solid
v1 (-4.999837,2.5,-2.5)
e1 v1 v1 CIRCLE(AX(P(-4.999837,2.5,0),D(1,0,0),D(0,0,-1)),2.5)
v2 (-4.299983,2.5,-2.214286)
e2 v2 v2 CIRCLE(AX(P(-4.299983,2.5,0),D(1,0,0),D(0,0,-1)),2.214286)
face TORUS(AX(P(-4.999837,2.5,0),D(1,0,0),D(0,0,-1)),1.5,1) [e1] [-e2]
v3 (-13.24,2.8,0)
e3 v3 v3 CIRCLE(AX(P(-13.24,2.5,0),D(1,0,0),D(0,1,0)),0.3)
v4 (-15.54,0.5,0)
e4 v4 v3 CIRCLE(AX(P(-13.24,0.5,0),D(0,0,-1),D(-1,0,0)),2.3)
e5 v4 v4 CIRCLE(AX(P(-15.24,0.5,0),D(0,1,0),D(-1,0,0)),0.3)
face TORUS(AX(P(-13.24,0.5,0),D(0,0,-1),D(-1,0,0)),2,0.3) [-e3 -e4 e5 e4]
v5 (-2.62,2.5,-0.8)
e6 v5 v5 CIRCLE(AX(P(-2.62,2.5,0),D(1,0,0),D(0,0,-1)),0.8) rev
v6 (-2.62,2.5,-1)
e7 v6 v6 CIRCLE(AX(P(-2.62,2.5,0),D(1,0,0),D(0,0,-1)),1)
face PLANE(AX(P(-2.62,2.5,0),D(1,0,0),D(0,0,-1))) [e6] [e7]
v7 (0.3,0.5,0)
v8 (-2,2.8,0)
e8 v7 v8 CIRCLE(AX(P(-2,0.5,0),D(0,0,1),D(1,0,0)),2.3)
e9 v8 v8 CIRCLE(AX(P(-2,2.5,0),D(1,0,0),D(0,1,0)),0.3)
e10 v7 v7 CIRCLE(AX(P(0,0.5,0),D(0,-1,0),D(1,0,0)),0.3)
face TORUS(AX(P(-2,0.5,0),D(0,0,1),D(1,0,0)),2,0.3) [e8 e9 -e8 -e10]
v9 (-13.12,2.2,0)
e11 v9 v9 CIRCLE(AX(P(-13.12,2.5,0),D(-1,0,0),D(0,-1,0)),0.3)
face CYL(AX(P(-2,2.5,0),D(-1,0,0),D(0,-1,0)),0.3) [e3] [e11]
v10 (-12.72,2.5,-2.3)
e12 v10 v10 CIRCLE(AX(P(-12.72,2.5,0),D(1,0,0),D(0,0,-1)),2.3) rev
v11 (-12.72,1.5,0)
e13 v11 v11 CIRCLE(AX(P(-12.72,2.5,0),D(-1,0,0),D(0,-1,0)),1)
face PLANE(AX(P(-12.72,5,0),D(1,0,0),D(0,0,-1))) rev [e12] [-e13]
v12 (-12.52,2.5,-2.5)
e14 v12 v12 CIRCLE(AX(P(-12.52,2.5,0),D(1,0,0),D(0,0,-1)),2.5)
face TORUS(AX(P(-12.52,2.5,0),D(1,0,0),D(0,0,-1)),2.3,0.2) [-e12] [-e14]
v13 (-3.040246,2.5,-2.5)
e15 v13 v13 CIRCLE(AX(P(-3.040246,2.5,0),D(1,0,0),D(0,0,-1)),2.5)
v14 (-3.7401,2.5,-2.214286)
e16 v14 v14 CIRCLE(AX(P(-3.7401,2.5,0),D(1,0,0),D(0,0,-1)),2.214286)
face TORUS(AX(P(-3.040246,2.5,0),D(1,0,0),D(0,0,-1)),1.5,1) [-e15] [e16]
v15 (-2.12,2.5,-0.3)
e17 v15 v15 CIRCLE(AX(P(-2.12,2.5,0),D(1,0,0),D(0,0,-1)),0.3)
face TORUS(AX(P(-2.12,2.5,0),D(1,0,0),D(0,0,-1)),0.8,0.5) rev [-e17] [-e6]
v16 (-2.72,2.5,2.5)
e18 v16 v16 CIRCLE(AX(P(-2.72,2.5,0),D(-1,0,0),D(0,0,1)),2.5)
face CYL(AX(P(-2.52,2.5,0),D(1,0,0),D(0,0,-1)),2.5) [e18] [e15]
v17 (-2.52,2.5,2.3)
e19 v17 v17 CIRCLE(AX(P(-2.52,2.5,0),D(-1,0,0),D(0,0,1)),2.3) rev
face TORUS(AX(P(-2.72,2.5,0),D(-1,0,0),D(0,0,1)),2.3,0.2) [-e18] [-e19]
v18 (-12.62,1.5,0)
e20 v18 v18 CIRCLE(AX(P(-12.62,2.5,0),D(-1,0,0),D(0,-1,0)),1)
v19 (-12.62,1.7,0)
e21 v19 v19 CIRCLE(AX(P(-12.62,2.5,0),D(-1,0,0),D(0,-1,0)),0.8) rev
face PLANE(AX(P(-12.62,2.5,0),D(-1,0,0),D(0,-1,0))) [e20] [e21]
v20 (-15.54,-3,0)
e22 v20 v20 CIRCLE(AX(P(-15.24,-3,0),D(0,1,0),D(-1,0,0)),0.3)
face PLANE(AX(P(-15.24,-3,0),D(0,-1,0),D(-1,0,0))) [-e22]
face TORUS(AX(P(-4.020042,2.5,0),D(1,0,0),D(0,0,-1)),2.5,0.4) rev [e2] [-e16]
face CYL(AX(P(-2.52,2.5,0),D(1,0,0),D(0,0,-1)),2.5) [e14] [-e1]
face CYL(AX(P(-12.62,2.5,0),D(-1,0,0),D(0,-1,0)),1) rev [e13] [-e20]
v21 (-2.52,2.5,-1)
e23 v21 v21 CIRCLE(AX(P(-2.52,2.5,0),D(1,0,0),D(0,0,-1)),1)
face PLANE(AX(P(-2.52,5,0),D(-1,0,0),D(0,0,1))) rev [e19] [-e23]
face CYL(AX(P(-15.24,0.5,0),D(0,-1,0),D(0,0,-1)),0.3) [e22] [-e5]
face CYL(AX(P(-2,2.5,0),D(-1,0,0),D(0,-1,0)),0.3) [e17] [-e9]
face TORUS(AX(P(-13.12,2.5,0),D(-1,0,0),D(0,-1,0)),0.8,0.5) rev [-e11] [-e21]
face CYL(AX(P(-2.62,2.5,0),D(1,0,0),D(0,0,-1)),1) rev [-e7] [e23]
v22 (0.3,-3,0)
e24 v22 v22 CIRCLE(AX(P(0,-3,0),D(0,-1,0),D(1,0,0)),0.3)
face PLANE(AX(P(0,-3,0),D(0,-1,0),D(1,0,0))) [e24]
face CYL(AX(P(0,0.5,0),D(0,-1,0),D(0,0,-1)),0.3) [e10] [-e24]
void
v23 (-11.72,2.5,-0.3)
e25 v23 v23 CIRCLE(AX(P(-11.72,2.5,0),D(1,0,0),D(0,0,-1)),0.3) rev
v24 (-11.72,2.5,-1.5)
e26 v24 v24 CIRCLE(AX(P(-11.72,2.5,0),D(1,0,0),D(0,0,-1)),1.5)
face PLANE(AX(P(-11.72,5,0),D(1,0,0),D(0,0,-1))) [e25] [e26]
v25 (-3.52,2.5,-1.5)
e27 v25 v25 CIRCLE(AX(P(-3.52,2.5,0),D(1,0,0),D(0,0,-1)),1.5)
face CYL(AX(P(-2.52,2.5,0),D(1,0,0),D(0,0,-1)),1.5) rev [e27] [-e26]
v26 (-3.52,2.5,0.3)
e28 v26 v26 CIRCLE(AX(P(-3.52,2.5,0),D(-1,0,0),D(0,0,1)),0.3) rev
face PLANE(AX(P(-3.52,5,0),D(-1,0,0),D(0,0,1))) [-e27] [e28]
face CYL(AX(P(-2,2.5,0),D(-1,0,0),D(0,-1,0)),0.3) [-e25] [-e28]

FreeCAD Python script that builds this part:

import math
import FreeCAD as App
import Part
import Sketcher
Q = App.Units.Quantity


def edges_at(feature, points):
    """Names of the edges that pass closest to the given points."""
    edges = feature.Shape.Edges
    near = lambda p: min(range(len(edges)), key=lambda i: edges[i].distToShape(Part.Vertex(*p))[0])
    return sorted({f"Edge{near(p) + 1}" for p in points})

doc = App.newDocument("Part")
body = doc.addObject("PartDesign::Body", "Body")

# Sketch on XY plane
sketch1 = body.newObject("Sketcher::SketchObject", "Sketch")
sketch1.AttachmentSupport = (doc.getObject("XY_Plane"), [""])
sketch1.MapMode = "FlatFace"
sketch1.addGeometry(Part.LineSegment(App.Vector(-12.72, 5, 0), App.Vector(-12.72, 2.5, 0)), False)
sketch1.addGeometry(Part.LineSegment(App.Vector(-12.72, 2.5, 0), App.Vector(-11.72, 2.5, 0)), False)
sketch1.addGeometry(Part.LineSegment(App.Vector(-11.72, 2.5, 0), App.Vector(-11.72, 4, 0)), False)
sketch1.addGeometry(Part.LineSegment(App.Vector(-11.72, 4, 0), App.Vector(-3.52, 4, 0)), False)
sketch1.addGeometry(Part.LineSegment(App.Vector(-3.52, 4, 0), App.Vector(-3.52, 2.5, 0)), False)
sketch1.addGeometry(Part.LineSegment(App.Vector(-3.52, 2.5, 0), App.Vector(-2.52, 2.5, 0)), False)
sketch1.addGeometry(Part.LineSegment(App.Vector(-2.52, 2.5, 0), App.Vector(-2.52, 5, 0)), False)
sketch1.addGeometry(Part.LineSegment(App.Vector(-2.52, 5, 0), App.Vector(-12.72, 5, 0)), False)
sketch1.addGeometry(Part.LineSegment(App.Vector(-2.52, 2.5, 0), App.Vector(-12.72, 2.5, 0)), True)  # axis
sketch1.addConstraint(Sketcher.Constraint("Coincident", 0, 2, 1, 1))
sketch1.addConstraint(Sketcher.Constraint("Coincident", 1, 2, 2, 1))
sketch1.addConstraint(Sketcher.Constraint("Coincident", 2, 2, 3, 1))
sketch1.addConstraint(Sketcher.Constraint("Coincident", 3, 2, 4, 1))
sketch1.addConstraint(Sketcher.Constraint("Coincident", 4, 2, 5, 1))
sketch1.addConstraint(Sketcher.Constraint("Coincident", 5, 2, 6, 1))
sketch1.addConstraint(Sketcher.Constraint("Coincident", 6, 2, 7, 1))
sketch1.addConstraint(Sketcher.Constraint("Coincident", 7, 2, 0, 1))
sketch1.addConstraint(Sketcher.Constraint("Vertical", 0))
sketch1.addConstraint(Sketcher.Constraint("Horizontal", 1))
sketch1.addConstraint(Sketcher.Constraint("Vertical", 2))
sketch1.addConstraint(Sketcher.Constraint("Horizontal", 3))
sketch1.addConstraint(Sketcher.Constraint("Vertical", 4))
sketch1.addConstraint(Sketcher.Constraint("Horizontal", 5))
sketch1.addConstraint(Sketcher.Constraint("Vertical", 6))
sketch1.addConstraint(Sketcher.Constraint("Horizontal", 7))
sketch1.addConstraint(Sketcher.Constraint("Horizontal", 8))
sketch1.addConstraint(Sketcher.Constraint("Coincident", 8, 1, 5, 2))
sketch1.addConstraint(Sketcher.Constraint("Coincident", 8, 2, 0, 2))
sketch1.addConstraint(Sketcher.Constraint("Equal", 1, 5))
sketch1.addConstraint(Sketcher.Constraint("DistanceX", 1, 1, 1, 2, Q("1 mm")))
sketch1.addConstraint(Sketcher.Constraint("DistanceX", 3, 1, 3, 2, Q("8.2 mm")))
sketch1.addConstraint(Sketcher.Constraint("DistanceY", 0, 2, 0, 1, Q("2.5 mm")))
sketch1.addConstraint(Sketcher.Constraint("DistanceY", 2, 1, 2, 2, Q("1.5 mm")))
sketch1.addConstraint(Sketcher.Constraint("DistanceY", -1, 1, 2, 2, Q("4 mm")))
sketch1.addConstraint(Sketcher.Constraint("DistanceX", 0, 2, -1, 1, Q("12.72 mm")))
revolution = body.newObject("PartDesign::Revolution", "Revolution")
revolution.Profile = sketch1
revolution.ReferenceAxis = (sketch1, ["Axis0"])
revolution.Angle = 360

# Sketch on YZ plane
sketch2 = body.newObject("Sketcher::SketchObject", "Sketch001")
sketch2.AttachmentSupport = (doc.getObject("YZ_Plane"), [""])
sketch2.MapMode = "FlatFace"
sketch2.AttachmentOffset = App.Placement(App.Vector(0, 0, -2.52), App.Rotation())
sketch2.addGeometry(Part.Circle(App.Vector(2.5, 0, 0), App.Vector(0, 0, 1), 1), False)
sketch2.addConstraint(Sketcher.Constraint("PointOnObject", 0, 3, -1))
sketch2.addConstraint(Sketcher.Constraint("Diameter", 0, Q("2 mm")))
sketch2.addConstraint(Sketcher.Constraint("DistanceX", -1, 1, 0, 3, Q("2.5 mm")))
pocket1 = body.newObject("PartDesign::Pocket", "Pocket")
pocket1.Profile = sketch2
pocket1.Length = 0.1

# Sketch on YZ plane
sketch3 = body.newObject("Sketcher::SketchObject", "Sketch002")
sketch3.AttachmentSupport = (doc.getObject("YZ_Plane"), [""])
sketch3.MapMode = "FlatFace"
sketch3.AttachmentOffset = App.Placement(App.Vector(0, 0, -12.72), App.Rotation())
sketch3.addGeometry(Part.Circle(App.Vector(2.5, 0, 0), App.Vector(0, 0, 1), 1), False)
sketch3.addConstraint(Sketcher.Constraint("PointOnObject", 0, 3, -1))
sketch3.addConstraint(Sketcher.Constraint("Diameter", 0, Q("2 mm")))
sketch3.addConstraint(Sketcher.Constraint("DistanceX", -1, 1, 0, 3, Q("2.5 mm")))
pocket2 = body.newObject("PartDesign::Pocket", "Pocket001")
pocket2.Profile = sketch3
pocket2.Length = 0.1
pocket2.Reversed = True
doc.recompute()

fillet = body.newObject("PartDesign::Fillet", "Fillet")
fillet.Base = (pocket2, edges_at(pocket2, [(-2.52, 0, 0), (-12.72, 0, 0)]))
fillet.Radius = 0.2

# Sketch on YZ plane
sketch4 = body.newObject("Sketcher::SketchObject", "Sketch003")
sketch4.AttachmentSupport = (doc.getObject("YZ_Plane"), [""])
sketch4.MapMode = "FlatFace"
sketch4.AttachmentOffset = App.Placement(App.Vector(0, 0, -2.62), App.Rotation())
sketch4.addGeometry(Part.Circle(App.Vector(2.5, 0, 0), App.Vector(0, 0, 1), 0.3), False)
sketch4.addConstraint(Sketcher.Constraint("PointOnObject", 0, 3, -1))
sketch4.addConstraint(Sketcher.Constraint("Diameter", 0, Q("0.6 mm")))
sketch4.addConstraint(Sketcher.Constraint("DistanceX", -1, 1, 0, 3, Q("2.5 mm")))
pad1 = body.newObject("PartDesign::Pad", "Pad")
pad1.Profile = sketch4
pad1.Type = "TwoLengths"
pad1.Length = 0.62
pad1.Length2 = 10.62
doc.recompute()

fillet2 = body.newObject("PartDesign::Fillet", "Fillet001")
fillet2.Base = (pad1, edges_at(pad1, [(-2.62, 2.5, 0.3), (-12.62, 2.5, 0.3)]))
fillet2.Radius = 0.5

# Sketch on YZ plane
sketch5 = body.newObject("Sketcher::SketchObject", "Sketch004")
sketch5.AttachmentSupport = (doc.getObject("YZ_Plane"), [""])
sketch5.MapMode = "FlatFace"
sketch5.AttachmentOffset = App.Placement(App.Vector(0, 0, -2), App.Rotation())
sketch5.addGeometry(Part.Circle(App.Vector(2.5, 0, 0), App.Vector(0, 0, 1), 0.3), False)
sketch5.addConstraint(Sketcher.Constraint("PointOnObject", 0, 3, -1))
sketch5.addConstraint(Sketcher.Constraint("Diameter", 0, Q("0.6 mm")))
sketch5.addConstraint(Sketcher.Constraint("DistanceX", -1, 1, 0, 3, Q("2.5 mm")))

# Sketch on XY plane
sketch6 = body.newObject("Sketcher::SketchObject", "Sketch005")
sketch6.AttachmentSupport = (doc.getObject("XY_Plane"), [""])
sketch6.MapMode = "FlatFace"
sketch6.addGeometry(Part.LineSegment(App.Vector(0, -3, 0), App.Vector(0, 0.5, 0)), False)
sketch6.addGeometry(Part.ArcOfCircle(Part.Circle(App.Vector(-2, 0.5, 0), App.Vector(0, 0, 1), 2), math.radians(0), math.radians(90)), False)
sketch6.addConstraint(Sketcher.Constraint("Tangent", 0, 2, 1, 1))
sketch6.addConstraint(Sketcher.Constraint("Vertical", 0))
sketch6.addConstraint(Sketcher.Constraint("PointOnObject", 0, 1, -2))
sketch6.addConstraint(Sketcher.Constraint("Radius", 1, Q("2 mm")))
sketch6.addConstraint(Sketcher.Constraint("DistanceY", 0, 1, 0, 2, Q("3.5 mm")))
sketch6.addConstraint(Sketcher.Constraint("DistanceY", 0, 1, -1, 1, Q("3 mm")))
sketch6.addConstraint(Sketcher.Constraint("DistanceX", 1, 2, -1, 1, Q("2 mm")))
doc.recompute()

additivepipe = body.newObject("PartDesign::AdditivePipe", "AdditivePipe")
additivepipe.Profile = sketch5
additivepipe.Spine = (sketch6, ["Edge1", "Edge2"])
doc.recompute()

datumplane = body.newObject("PartDesign::Plane", "DatumPlane")
datumplane.AttachmentSupport = (doc.getObject("YZ_Plane"), [""])
datumplane.MapMode = "FlatFace"
datumplane.AttachmentOffset = App.Placement(App.Vector(0, 0, -7.62), App.Rotation())
mirrored = body.newObject("PartDesign::Mirrored", "Mirrored")
mirrored.Originals = [additivepipe]
mirrored.MirrorPlane = (datumplane, [""])
body.Tip = mirrored

# Sketch on XY plane
sketch7 = body.newObject("Sketcher::SketchObject", "Sketch006")
sketch7.AttachmentSupport = (doc.getObject("XY_Plane"), [""])
sketch7.MapMode = "FlatFace"
sketch7.addGeometry(Part.LineSegment(App.Vector(-3.040246, 5, 0), App.Vector(-4.999837, 5, 0)), False)
sketch7.addGeometry(Part.ArcOfCircle(Part.Circle(App.Vector(-4.999837, 4, 0), App.Vector(0, 0, 1), 1), math.radians(45.584715), math.radians(90)), False)
sketch7.addGeometry(Part.ArcOfCircle(Part.Circle(App.Vector(-4.020042, 5, 0), App.Vector(0, 0, 1), 0.4), math.radians(-134.415285), math.radians(-45.584715)), False)
sketch7.addGeometry(Part.ArcOfCircle(Part.Circle(App.Vector(-3.040246, 4, 0), App.Vector(0, 0, 1), 1), math.radians(90), math.radians(134.415285)), False)
sketch7.addGeometry(Part.LineSegment(App.Vector(-3.040246, 2.5, 0), App.Vector(-4.999837, 2.5, 0)), True)  # axis
sketch7.addConstraint(Sketcher.Constraint("Tangent", 0, 2, 1, 2))
sketch7.addConstraint(Sketcher.Constraint("Tangent", 1, 1, 2, 1))
sketch7.addConstraint(Sketcher.Constraint("Tangent", 2, 2, 3, 2))
sketch7.addConstraint(Sketcher.Constraint("Tangent", 3, 1, 0, 1))
sketch7.addConstraint(Sketcher.Constraint("Horizontal", 0))
sketch7.addConstraint(Sketcher.Constraint("Horizontal", 4))
sketch7.addConstraint(Sketcher.Constraint("Equal", 1, 3))
sketch7.addConstraint(Sketcher.Constraint("Horizontal", 2, 3, 0, 2))
sketch7.addConstraint(Sketcher.Constraint("Vertical", 3, 1, 4, 1))
sketch7.addConstraint(Sketcher.Constraint("Vertical", 0, 2, 4, 2))
sketch7.addConstraint(Sketcher.Constraint("Radius", 1, Q("1 mm")))
sketch7.addConstraint(Sketcher.Constraint("Radius", 2, Q("0.4 mm")))
sketch7.addConstraint(Sketcher.Constraint("DistanceY", -1, 1, 1, 3, Q("4 mm")))
sketch7.addConstraint(Sketcher.Constraint("DistanceY", -1, 1, 4, 1, Q("2.5 mm")))
sketch7.addConstraint(Sketcher.Constraint("DistanceX", 2, 2, -1, 1, Q("3.7401 mm")))
groove = body.newObject("PartDesign::Groove", "Groove")
groove.Profile = sketch7
groove.ReferenceAxis = (sketch7, ["Axis0"])
groove.Angle = 360

doc.recompute()
